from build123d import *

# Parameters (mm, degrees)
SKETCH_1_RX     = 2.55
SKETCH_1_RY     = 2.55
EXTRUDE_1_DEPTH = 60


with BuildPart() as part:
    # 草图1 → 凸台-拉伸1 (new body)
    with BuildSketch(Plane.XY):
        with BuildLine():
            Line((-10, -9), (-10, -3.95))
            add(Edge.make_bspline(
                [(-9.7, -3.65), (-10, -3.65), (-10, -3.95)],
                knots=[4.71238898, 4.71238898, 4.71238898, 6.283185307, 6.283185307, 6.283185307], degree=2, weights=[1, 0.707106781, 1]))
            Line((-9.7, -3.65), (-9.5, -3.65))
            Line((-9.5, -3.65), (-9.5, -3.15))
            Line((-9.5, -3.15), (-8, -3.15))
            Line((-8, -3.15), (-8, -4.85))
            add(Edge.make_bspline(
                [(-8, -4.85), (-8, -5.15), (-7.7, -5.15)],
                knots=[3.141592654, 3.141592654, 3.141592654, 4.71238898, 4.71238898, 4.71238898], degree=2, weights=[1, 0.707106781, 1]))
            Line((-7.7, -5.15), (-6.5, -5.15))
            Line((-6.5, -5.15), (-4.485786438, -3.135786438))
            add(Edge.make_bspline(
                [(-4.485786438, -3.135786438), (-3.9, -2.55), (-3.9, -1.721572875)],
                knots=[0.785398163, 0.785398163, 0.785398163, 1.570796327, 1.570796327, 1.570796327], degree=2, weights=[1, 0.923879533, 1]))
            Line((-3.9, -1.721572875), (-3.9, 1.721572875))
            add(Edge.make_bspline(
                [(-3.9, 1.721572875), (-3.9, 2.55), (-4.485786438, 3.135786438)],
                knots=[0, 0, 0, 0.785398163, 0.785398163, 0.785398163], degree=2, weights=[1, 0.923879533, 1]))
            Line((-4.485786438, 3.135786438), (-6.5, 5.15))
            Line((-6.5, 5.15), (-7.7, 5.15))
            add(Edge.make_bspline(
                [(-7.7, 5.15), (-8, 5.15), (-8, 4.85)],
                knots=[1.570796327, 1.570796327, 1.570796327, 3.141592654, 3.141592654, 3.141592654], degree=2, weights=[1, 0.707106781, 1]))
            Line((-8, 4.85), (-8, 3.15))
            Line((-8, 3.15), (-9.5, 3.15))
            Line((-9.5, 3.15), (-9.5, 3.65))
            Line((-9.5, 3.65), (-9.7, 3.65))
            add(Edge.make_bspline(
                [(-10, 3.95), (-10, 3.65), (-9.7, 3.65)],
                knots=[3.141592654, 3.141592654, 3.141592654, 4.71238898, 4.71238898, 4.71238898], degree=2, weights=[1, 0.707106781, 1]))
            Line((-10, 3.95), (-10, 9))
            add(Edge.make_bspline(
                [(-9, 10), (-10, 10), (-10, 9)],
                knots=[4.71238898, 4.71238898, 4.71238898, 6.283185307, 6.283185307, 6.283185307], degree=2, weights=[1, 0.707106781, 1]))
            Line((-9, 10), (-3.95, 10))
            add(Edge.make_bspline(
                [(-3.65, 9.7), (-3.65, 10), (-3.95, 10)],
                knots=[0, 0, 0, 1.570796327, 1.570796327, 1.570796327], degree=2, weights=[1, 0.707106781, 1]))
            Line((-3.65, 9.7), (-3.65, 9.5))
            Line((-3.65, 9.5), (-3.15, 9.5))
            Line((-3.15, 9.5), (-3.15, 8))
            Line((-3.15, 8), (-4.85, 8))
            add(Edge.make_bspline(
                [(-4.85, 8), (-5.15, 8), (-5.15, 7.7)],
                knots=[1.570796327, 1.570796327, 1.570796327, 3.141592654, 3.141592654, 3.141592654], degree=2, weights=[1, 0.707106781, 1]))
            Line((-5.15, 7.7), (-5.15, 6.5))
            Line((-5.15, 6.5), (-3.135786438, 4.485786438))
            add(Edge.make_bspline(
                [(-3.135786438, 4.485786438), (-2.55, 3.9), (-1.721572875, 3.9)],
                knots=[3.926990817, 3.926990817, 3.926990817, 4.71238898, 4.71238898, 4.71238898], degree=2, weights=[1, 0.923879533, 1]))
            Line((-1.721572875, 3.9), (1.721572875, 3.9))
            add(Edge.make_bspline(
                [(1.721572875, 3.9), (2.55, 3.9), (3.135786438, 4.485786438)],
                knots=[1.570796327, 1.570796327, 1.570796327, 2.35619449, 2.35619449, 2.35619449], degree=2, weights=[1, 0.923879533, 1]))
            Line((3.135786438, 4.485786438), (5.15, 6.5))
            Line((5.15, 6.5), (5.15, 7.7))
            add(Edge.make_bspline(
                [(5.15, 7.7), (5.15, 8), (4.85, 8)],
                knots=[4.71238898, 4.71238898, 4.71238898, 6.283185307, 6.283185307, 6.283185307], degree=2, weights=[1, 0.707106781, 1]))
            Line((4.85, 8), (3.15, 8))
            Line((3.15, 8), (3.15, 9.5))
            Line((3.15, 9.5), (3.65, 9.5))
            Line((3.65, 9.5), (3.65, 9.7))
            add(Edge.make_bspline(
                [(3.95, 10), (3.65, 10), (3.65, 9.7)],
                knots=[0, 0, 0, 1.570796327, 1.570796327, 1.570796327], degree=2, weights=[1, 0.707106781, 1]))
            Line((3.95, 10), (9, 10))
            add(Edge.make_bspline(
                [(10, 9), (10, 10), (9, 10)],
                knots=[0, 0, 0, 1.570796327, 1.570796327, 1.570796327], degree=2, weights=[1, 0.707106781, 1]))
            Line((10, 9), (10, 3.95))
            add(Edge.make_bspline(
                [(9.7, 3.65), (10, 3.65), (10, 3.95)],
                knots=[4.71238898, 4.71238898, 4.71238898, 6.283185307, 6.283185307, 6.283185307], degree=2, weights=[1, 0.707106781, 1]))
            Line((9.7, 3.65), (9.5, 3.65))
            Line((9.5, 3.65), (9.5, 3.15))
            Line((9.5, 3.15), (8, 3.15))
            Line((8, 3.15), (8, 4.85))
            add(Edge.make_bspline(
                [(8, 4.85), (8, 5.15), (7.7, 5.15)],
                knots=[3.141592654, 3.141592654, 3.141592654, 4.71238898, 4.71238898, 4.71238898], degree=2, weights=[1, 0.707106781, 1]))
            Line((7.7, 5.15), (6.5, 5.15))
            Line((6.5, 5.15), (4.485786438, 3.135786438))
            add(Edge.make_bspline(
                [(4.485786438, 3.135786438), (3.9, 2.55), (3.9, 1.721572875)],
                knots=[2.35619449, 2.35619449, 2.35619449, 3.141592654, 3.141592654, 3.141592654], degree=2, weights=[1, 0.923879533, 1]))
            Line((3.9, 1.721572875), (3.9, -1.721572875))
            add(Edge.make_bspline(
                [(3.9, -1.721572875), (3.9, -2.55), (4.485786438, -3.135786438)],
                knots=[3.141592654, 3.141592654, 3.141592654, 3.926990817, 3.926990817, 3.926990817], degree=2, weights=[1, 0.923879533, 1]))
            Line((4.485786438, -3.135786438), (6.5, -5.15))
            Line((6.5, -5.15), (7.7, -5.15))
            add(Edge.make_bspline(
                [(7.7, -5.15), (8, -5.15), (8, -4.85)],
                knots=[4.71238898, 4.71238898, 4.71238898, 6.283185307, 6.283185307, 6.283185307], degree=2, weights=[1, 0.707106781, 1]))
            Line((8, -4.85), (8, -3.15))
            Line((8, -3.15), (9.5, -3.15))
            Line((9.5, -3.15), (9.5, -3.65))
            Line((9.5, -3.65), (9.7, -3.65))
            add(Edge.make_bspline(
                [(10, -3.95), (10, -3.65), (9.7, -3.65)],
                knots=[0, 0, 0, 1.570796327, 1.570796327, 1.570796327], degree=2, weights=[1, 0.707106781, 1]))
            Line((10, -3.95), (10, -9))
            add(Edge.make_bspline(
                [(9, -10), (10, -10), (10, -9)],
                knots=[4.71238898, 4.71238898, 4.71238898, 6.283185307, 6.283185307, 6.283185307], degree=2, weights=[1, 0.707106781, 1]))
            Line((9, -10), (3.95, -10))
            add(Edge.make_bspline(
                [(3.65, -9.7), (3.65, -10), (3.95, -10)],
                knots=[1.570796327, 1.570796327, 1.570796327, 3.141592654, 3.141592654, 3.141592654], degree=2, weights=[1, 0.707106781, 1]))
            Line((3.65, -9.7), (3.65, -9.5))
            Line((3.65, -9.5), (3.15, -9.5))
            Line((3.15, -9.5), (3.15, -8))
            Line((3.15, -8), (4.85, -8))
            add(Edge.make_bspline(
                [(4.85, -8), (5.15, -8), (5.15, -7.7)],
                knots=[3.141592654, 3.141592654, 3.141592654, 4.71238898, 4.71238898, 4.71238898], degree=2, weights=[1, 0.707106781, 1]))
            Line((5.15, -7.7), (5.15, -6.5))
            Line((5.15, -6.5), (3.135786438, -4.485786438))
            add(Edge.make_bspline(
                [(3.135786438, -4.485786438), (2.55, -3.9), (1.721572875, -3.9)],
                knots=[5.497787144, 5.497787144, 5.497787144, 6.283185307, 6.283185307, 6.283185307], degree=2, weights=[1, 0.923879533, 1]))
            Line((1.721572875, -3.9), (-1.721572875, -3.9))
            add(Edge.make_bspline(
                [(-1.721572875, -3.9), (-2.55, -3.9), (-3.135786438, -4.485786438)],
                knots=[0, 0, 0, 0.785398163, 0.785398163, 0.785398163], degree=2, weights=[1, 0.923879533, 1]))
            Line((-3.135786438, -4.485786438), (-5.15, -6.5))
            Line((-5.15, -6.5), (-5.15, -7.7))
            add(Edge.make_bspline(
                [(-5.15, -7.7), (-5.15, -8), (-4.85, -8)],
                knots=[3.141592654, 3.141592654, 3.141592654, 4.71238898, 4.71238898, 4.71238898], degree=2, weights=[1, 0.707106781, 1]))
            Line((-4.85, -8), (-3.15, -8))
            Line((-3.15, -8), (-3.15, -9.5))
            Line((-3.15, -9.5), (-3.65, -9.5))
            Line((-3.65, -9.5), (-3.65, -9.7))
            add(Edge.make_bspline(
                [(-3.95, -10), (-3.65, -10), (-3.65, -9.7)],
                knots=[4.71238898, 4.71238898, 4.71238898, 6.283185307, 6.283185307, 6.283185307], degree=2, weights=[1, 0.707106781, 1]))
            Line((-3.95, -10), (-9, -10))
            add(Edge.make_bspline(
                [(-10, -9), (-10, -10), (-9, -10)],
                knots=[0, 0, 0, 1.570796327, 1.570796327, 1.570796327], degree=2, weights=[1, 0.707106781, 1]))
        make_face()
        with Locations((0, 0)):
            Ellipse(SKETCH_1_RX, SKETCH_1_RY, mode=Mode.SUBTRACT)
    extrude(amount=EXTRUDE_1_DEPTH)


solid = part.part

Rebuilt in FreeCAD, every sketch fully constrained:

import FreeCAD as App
import Part
import Sketcher
Q = App.Units.Quantity

doc = App.newDocument("Part")
body = doc.addObject("PartDesign::Body", "Body")

# Sketch on XY plane
sketch1 = doc.addObject("Sketcher::SketchObject", "Sketch")
body.addObject(sketch1)
sketch1.AttachmentSupport = (doc.XY_Plane, [""])
sketch1.MapMode = "FlatFace"
sketch1.addGeometry(Part.LineSegment(App.Vector(-10, -3.95, 0), App.Vector(-10, -9, 0)), False)
sketch1.addGeometry(Part.BSplineCurve([App.Vector(-10, -9, 0), App.Vector(-10, -10, 0), App.Vector(-9, -10, 0)], [3, 3], [0, 1.570796327], False, 2, [1, 0.707106781, 1], False), False)
sketch1.addGeometry(Part.LineSegment(App.Vector(-9, -10, 0), App.Vector(-3.95, -10, 0)), False)
sketch1.addGeometry(Part.BSplineCurve([App.Vector(-3.95, -10, 0), App.Vector(-3.65, -10, 0), App.Vector(-3.65, -9.7, 0)], [3, 3], [4.71238898, 6.283185307], False, 2, [1, 0.707106781, 1], False), False)
sketch1.addGeometry(Part.LineSegment(App.Vector(-3.65, -9.7, 0), App.Vector(-3.65, -9.5, 0)), False)
sketch1.addGeometry(Part.LineSegment(App.Vector(-3.65, -9.5, 0), App.Vector(-3.15, -9.5, 0)), False)
sketch1.addGeometry(Part.LineSegment(App.Vector(-3.15, -9.5, 0), App.Vector(-3.15, -8, 0)), False)
sketch1.addGeometry(Part.LineSegment(App.Vector(-3.15, -8, 0), App.Vector(-4.85, -8, 0)), False)
sketch1.addGeometry(Part.BSplineCurve([App.Vector(-5.15, -7.7, 0), App.Vector(-5.15, -8, 0), App.Vector(-4.85, -8, 0)], [3, 3], [3.141592654, 4.71238898], False, 2, [1, 0.707106781, 1], False), False)
sketch1.addGeometry(Part.LineSegment(App.Vector(-5.15, -7.7, 0), App.Vector(-5.15, -6.5, 0)), False)
sketch1.addGeometry(Part.LineSegment(App.Vector(-5.15, -6.5, 0), App.Vector(-3.135786, -4.485786, 0)), False)
sketch1.addGeometry(Part.BSplineCurve([App.Vector(-1.721573, -3.9, 0), App.Vector(-2.55, -3.9, 0), App.Vector(-3.135786, -4.485786, 0)], [3, 3], [0, 0.785398163], False, 2, [1, 0.923879533, 1], False), False)
sketch1.addGeometry(Part.LineSegment(App.Vector(-1.721573, -3.9, 0), App.Vector(1.721573, -3.9, 0)), False)
sketch1.addGeometry(Part.BSplineCurve([App.Vector(3.135786, -4.485786, 0), App.Vector(2.55, -3.9, 0), App.Vector(1.721573, -3.9, 0)], [3, 3], [5.497787144, 6.283185307], False, 2, [1, 0.923879533, 1], False), False)
sketch1.addGeometry(Part.LineSegment(App.Vector(3.135786, -4.485786, 0), App.Vector(5.15, -6.5, 0)), False)
sketch1.addGeometry(Part.LineSegment(App.Vector(5.15, -6.5, 0), App.Vector(5.15, -7.7, 0)), False)
sketch1.addGeometry(Part.BSplineCurve([App.Vector(4.85, -8, 0), App.Vector(5.15, -8, 0), App.Vector(5.15, -7.7, 0)], [3, 3], [3.141592654, 4.71238898], False, 2, [1, 0.707106781, 1], False), False)
sketch1.addGeometry(Part.LineSegment(App.Vector(4.85, -8, 0), App.Vector(3.15, -8, 0)), False)
sketch1.addGeometry(Part.LineSegment(App.Vector(3.15, -8, 0), App.Vector(3.15, -9.5, 0)), False)
sketch1.addGeometry(Part.LineSegment(App.Vector(3.15, -9.5, 0), App.Vector(3.65, -9.5, 0)), False)
sketch1.addGeometry(Part.LineSegment(App.Vector(3.65, -9.5, 0), App.Vector(3.65, -9.7, 0)), False)
sketch1.addGeometry(Part.BSplineCurve([App.Vector(3.65, -9.7, 0), App.Vector(3.65, -10, 0), App.Vector(3.95, -10, 0)], [3, 3], [1.570796327, 3.141592654], False, 2, [1, 0.707106781, 1], False), False)
sketch1.addGeometry(Part.LineSegment(App.Vector(3.95, -10, 0), App.Vector(9, -10, 0)), False)
sketch1.addGeometry(Part.BSplineCurve([App.Vector(9, -10, 0), App.Vector(10, -10, 0), App.Vector(10, -9, 0)], [3, 3], [4.71238898, 6.283185307], False, 2, [1, 0.707106781, 1], False), False)
sketch1.addGeometry(Part.LineSegment(App.Vector(10, -9, 0), App.Vector(10, -3.95, 0)), False)
sketch1.addGeometry(Part.BSplineCurve([App.Vector(10, -3.95, 0), App.Vector(10, -3.65, 0), App.Vector(9.7, -3.65, 0)], [3, 3], [0, 1.570796327], False, 2, [1, 0.707106781, 1], False), False)
sketch1.addGeometry(Part.LineSegment(App.Vector(9.7, -3.65, 0), App.Vector(9.5, -3.65, 0)), False)
sketch1.addGeometry(Part.LineSegment(App.Vector(9.5, -3.65, 0), App.Vector(9.5, -3.15, 0)), False)
sketch1.addGeometry(Part.LineSegment(App.Vector(9.5, -3.15, 0), App.Vector(8, -3.15, 0)), False)
sketch1.addGeometry(Part.LineSegment(App.Vector(8, -3.15, 0), App.Vector(8, -4.85, 0)), False)
sketch1.addGeometry(Part.BSplineCurve([App.Vector(7.7, -5.15, 0), App.Vector(8, -5.15, 0), App.Vector(8, -4.85, 0)], [3, 3], [4.71238898, 6.283185307], False, 2, [1, 0.707106781, 1], False), False)
sketch1.addGeometry(Part.LineSegment(App.Vector(7.7, -5.15, 0), App.Vector(6.5, -5.15, 0)), False)
sketch1.addGeometry(Part.LineSegment(App.Vector(6.5, -5.15, 0), App.Vector(4.485786, -3.135786, 0)), False)
sketch1.addGeometry(Part.BSplineCurve([App.Vector(3.9, -1.721573, 0), App.Vector(3.9, -2.55, 0), App.Vector(4.485786, -3.135786, 0)], [3, 3], [3.141592654, 3.926990817], False, 2, [1, 0.923879533, 1], False), False)
sketch1.addGeometry(Part.LineSegment(App.Vector(3.9, -1.721573, 0), App.Vector(3.9, 1.721573, 0)), False)
sketch1.addGeometry(Part.BSplineCurve([App.Vector(4.485786, 3.135786, 0), App.Vector(3.9, 2.55, 0), App.Vector(3.9, 1.721573, 0)], [3, 3], [2.35619449, 3.141592654], False, 2, [1, 0.923879533, 1], False), False)
sketch1.addGeometry(Part.LineSegment(App.Vector(4.485786, 3.135786, 0), App.Vector(6.5, 5.15, 0)), False)
sketch1.addGeometry(Part.LineSegment(App.Vector(6.5, 5.15, 0), App.Vector(7.7, 5.15, 0)), False)
sketch1.addGeometry(Part.BSplineCurve([App.Vector(8, 4.85, 0), App.Vector(8, 5.15, 0), App.Vector(7.7, 5.15, 0)], [3, 3], [3.141592654, 4.71238898], False, 2, [1, 0.707106781, 1], False), False)
sketch1.addGeometry(Part.LineSegment(App.Vector(8, 4.85, 0), App.Vector(8, 3.15, 0)), False)
sketch1.addGeometry(Part.LineSegment(App.Vector(8, 3.15, 0), App.Vector(9.5, 3.15, 0)), False)
sketch1.addGeometry(Part.LineSegment(App.Vector(9.5, 3.15, 0), App.Vector(9.5, 3.65, 0)), False)
sketch1.addGeometry(Part.LineSegment(App.Vector(9.5, 3.65, 0), App.Vector(9.7, 3.65, 0)), False)
sketch1.addGeometry(Part.BSplineCurve([App.Vector(9.7, 3.65, 0), App.Vector(10, 3.65, 0), App.Vector(10, 3.95, 0)], [3, 3], [4.71238898, 6.283185307], False, 2, [1, 0.707106781, 1], False), False)
sketch1.addGeometry(Part.LineSegment(App.Vector(10, 3.95, 0), App.Vector(10, 9, 0)), False)
sketch1.addGeometry(Part.BSplineCurve([App.Vector(10, 9, 0), App.Vector(10, 10, 0), App.Vector(9, 10, 0)], [3, 3], [0, 1.570796327], False, 2, [1, 0.707106781, 1], False), False)
sketch1.addGeometry(Part.LineSegment(App.Vector(9, 10, 0), App.Vector(3.95, 10, 0)), False)
sketch1.addGeometry(Part.BSplineCurve([App.Vector(3.95, 10, 0), App.Vector(3.65, 10, 0), App.Vector(3.65, 9.7, 0)], [3, 3], [0, 1.570796327], False, 2, [1, 0.707106781, 1], False), False)
sketch1.addGeometry(Part.LineSegment(App.Vector(3.65, 9.7, 0), App.Vector(3.65, 9.5, 0)), False)
sketch1.addGeometry(Part.LineSegment(App.Vector(3.65, 9.5, 0), App.Vector(3.15, 9.5, 0)), False)
sketch1.addGeometry(Part.LineSegment(App.Vector(3.15, 9.5, 0), App.Vector(3.15, 8, 0)), False)
sketch1.addGeometry(Part.LineSegment(App.Vector(3.15, 8, 0), App.Vector(4.85, 8, 0)), False)
sketch1.addGeometry(Part.BSplineCurve([App.Vector(5.15, 7.7, 0), App.Vector(5.15, 8, 0), App.Vector(4.85, 8, 0)], [3, 3], [4.71238898, 6.283185307], False, 2, [1, 0.707106781, 1], False), False)
sketch1.addGeometry(Part.LineSegment(App.Vector(5.15, 7.7, 0), App.Vector(5.15, 6.5, 0)), False)
sketch1.addGeometry(Part.LineSegment(App.Vector(5.15, 6.5, 0), App.Vector(3.135786, 4.485786, 0)), False)
sketch1.addGeometry(Part.BSplineCurve([App.Vector(1.721573, 3.9, 0), App.Vector(2.55, 3.9, 0), App.Vector(3.135786, 4.485786, 0)], [3, 3], [1.570796327, 2.35619449], False, 2, [1, 0.923879533, 1], False), False)
sketch1.addGeometry(Part.LineSegment(App.Vector(1.721573, 3.9, 0), App.Vector(-1.721573, 3.9, 0)), False)
sketch1.addGeometry(Part.BSplineCurve([App.Vector(-3.135786, 4.485786, 0), App.Vector(-2.55, 3.9, 0), App.Vector(-1.721573, 3.9, 0)], [3, 3], [3.926990817, 4.71238898], False, 2, [1, 0.923879533, 1], False), False)
sketch1.addGeometry(Part.LineSegment(App.Vector(-3.135786, 4.485786, 0), App.Vector(-5.15, 6.5, 0)), False)
sketch1.addGeometry(Part.LineSegment(App.Vector(-5.15, 6.5, 0), App.Vector(-5.15, 7.7, 0)), False)
sketch1.addGeometry(Part.BSplineCurve([App.Vector(-4.85, 8, 0), App.Vector(-5.15, 8, 0), App.Vector(-5.15, 7.7, 0)], [3, 3], [1.570796327, 3.141592654], False, 2, [1, 0.707106781, 1], False), False)
sketch1.addGeometry(Part.LineSegment(App.Vector(-4.85, 8, 0), App.Vector(-3.15, 8, 0)), False)
sketch1.addGeometry(Part.LineSegment(App.Vector(-3.15, 8, 0), App.Vector(-3.15, 9.5, 0)), False)
sketch1.addGeometry(Part.LineSegment(App.Vector(-3.15, 9.5, 0), App.Vector(-3.65, 9.5, 0)), False)
sketch1.addGeometry(Part.LineSegment(App.Vector(-3.65, 9.5, 0), App.Vector(-3.65, 9.7, 0)), False)
sketch1.addGeometry(Part.BSplineCurve([App.Vector(-3.65, 9.7, 0), App.Vector(-3.65, 10, 0), App.Vector(-3.95, 10, 0)], [3, 3], [0, 1.570796327], False, 2, [1, 0.707106781, 1], False), False)
sketch1.addGeometry(Part.LineSegment(App.Vector(-3.95, 10, 0), App.Vector(-9, 10, 0)), False)
sketch1.addGeometry(Part.BSplineCurve([App.Vector(-9, 10, 0), App.Vector(-10, 10, 0), App.Vector(-10, 9, 0)], [3, 3], [4.71238898, 6.283185307], False, 2, [1, 0.707106781, 1], False), False)
sketch1.addGeometry(Part.LineSegment(App.Vector(-10, 9, 0), App.Vector(-10, 3.95, 0)), False)
sketch1.addGeometry(Part.BSplineCurve([App.Vector(-10, 3.95, 0), App.Vector(-10, 3.65, 0), App.Vector(-9.7, 3.65, 0)], [3, 3], [3.141592654, 4.71238898], False, 2, [1, 0.707106781, 1], False), False)
sketch1.addGeometry(Part.LineSegment(App.Vector(-9.7, 3.65, 0), App.Vector(-9.5, 3.65, 0)), False)
sketch1.addGeometry(Part.LineSegment(App.Vector(-9.5, 3.65, 0), App.Vector(-9.5, 3.15, 0)), False)
sketch1.addGeometry(Part.LineSegment(App.Vector(-9.5, 3.15, 0), App.Vector(-8, 3.15, 0)), False)
sketch1.addGeometry(Part.LineSegment(App.Vector(-8, 3.15, 0), App.Vector(-8, 4.85, 0)), False)
sketch1.addGeometry(Part.BSplineCurve([App.Vector(-7.7, 5.15, 0), App.Vector(-8, 5.15, 0), App.Vector(-8, 4.85, 0)], [3, 3], [1.570796327, 3.141592654], False, 2, [1, 0.707106781, 1], False), False)
sketch1.addGeometry(Part.LineSegment(App.Vector(-7.7, 5.15, 0), App.Vector(-6.5, 5.15, 0)), False)
sketch1.addGeometry(Part.LineSegment(App.Vector(-6.5, 5.15, 0), App.Vector(-4.485786, 3.135786, 0)), False)
sketch1.addGeometry(Part.BSplineCurve([App.Vector(-3.9, 1.721573, 0), App.Vector(-3.9, 2.55, 0), App.Vector(-4.485786, 3.135786, 0)], [3, 3], [0, 0.785398163], False, 2, [1, 0.923879533, 1], False), False)
sketch1.addGeometry(Part.LineSegment(App.Vector(-3.9, 1.721573, 0), App.Vector(-3.9, -1.721573, 0)), False)
sketch1.addGeometry(Part.BSplineCurve([App.Vector(-4.485786, -3.135786, 0), App.Vector(-3.9, -2.55, 0), App.Vector(-3.9, -1.721573, 0)], [3, 3], [0.785398163, 1.570796327], False, 2, [1, 0.923879533, 1], False), False)
sketch1.addGeometry(Part.LineSegment(App.Vector(-4.485786, -3.135786, 0), App.Vector(-6.5, -5.15, 0)), False)
sketch1.addGeometry(Part.LineSegment(App.Vector(-6.5, -5.15, 0), App.Vector(-7.7, -5.15, 0)), False)
sketch1.addGeometry(Part.BSplineCurve([App.Vector(-8, -4.85, 0), App.Vector(-8, -5.15, 0), App.Vector(-7.7, -5.15, 0)], [3, 3], [3.141592654, 4.71238898], False, 2, [1, 0.707106781, 1], False), False)
sketch1.addGeometry(Part.LineSegment(App.Vector(-8, -4.85, 0), App.Vector(-8, -3.15, 0)), False)
sketch1.addGeometry(Part.LineSegment(App.Vector(-8, -3.15, 0), App.Vector(-9.5, -3.15, 0)), False)
sketch1.addGeometry(Part.LineSegment(App.Vector(-9.5, -3.15, 0), App.Vector(-9.5, -3.65, 0)), False)
sketch1.addGeometry(Part.LineSegment(App.Vector(-9.5, -3.65, 0), App.Vector(-9.7, -3.65, 0)), False)
sketch1.addGeometry(Part.BSplineCurve([App.Vector(-9.7, -3.65, 0), App.Vector(-10, -3.65, 0), App.Vector(-10, -3.95, 0)], [3, 3], [4.71238898, 6.283185307], False, 2, [1, 0.707106781, 1], False), False)
sketch1.addGeometry(Part.Ellipse(App.Vector(2.55, 0, 0), App.Vector(0, 2.55, 0), App.Vector(0, 0, 0)), False)
sketch1.addConstraint(Sketcher.Constraint("Block", 1))
sketch1.addConstraint(Sketcher.Constraint("Block", 3))
sketch1.addConstraint(Sketcher.Constraint("Block", 8))
sketch1.addConstraint(Sketcher.Constraint("Block", 11))
sketch1.addConstraint(Sketcher.Constraint("Block", 13))
sketch1.addConstraint(Sketcher.Constraint("Block", 16))
sketch1.addConstraint(Sketcher.Constraint("Block", 21))
sketch1.addConstraint(Sketcher.Constraint("Block", 23))
sketch1.addConstraint(Sketcher.Constraint("Block", 25))
sketch1.addConstraint(Sketcher.Constraint("Block", 30))
sketch1.addConstraint(Sketcher.Constraint("Block", 33))
sketch1.addConstraint(Sketcher.Constraint("Block", 35))
sketch1.addConstraint(Sketcher.Constraint("Block", 38))
sketch1.addConstraint(Sketcher.Constraint("Block", 43))
sketch1.addConstraint(Sketcher.Constraint("Block", 45))
sketch1.addConstraint(Sketcher.Constraint("Block", 47))
sketch1.addConstraint(Sketcher.Constraint("Block", 52))
sketch1.addConstraint(Sketcher.Constraint("Block", 55))
sketch1.addConstraint(Sketcher.Constraint("Block", 57))
sketch1.addConstraint(Sketcher.Constraint("Block", 60))
sketch1.addConstraint(Sketcher.Constraint("Block", 65))
sketch1.addConstraint(Sketcher.Constraint("Block", 67))
sketch1.addConstraint(Sketcher.Constraint("Block", 69))
sketch1.addConstraint(Sketcher.Constraint("Block", 74))
sketch1.addConstraint(Sketcher.Constraint("Block", 77))
sketch1.addConstraint(Sketcher.Constraint("Block", 79))
sketch1.addConstraint(Sketcher.Constraint("Block", 82))
sketch1.addConstraint(Sketcher.Constraint("Block", 87))
sketch1.addConstraint(Sketcher.Constraint("Block", 88))
sketch1.addConstraint(Sketcher.Constraint("Coincident", 0, 2, 1, 1))
sketch1.addConstraint(Sketcher.Constraint("Coincident", 1, 2, 2, 1))
sketch1.addConstraint(Sketcher.Constraint("Coincident", 2, 2, 3, 1))
sketch1.addConstraint(Sketcher.Constraint("Coincident", 3, 2, 4, 1))
sketch1.addConstraint(Sketcher.Constraint("Coincident", 4, 2, 5, 1))
sketch1.addConstraint(Sketcher.Constraint("Coincident", 5, 2, 6, 1))
sketch1.addConstraint(Sketcher.Constraint("Coincident", 6, 2, 7, 1))
sketch1.addConstraint(Sketcher.Constraint("Coincident", 7, 2, 8, 2))
sketch1.addConstraint(Sketcher.Constraint("Coincident", 8, 1, 9, 1))
sketch1.addConstraint(Sketcher.Constraint("Coincident", 9, 2, 10, 1))
sketch1.addConstraint(Sketcher.Constraint("Coincident", 10, 2, 11, 2))
sketch1.addConstraint(Sketcher.Constraint("Coincident", 11, 1, 12, 1))
sketch1.addConstraint(Sketcher.Constraint("Coincident", 12, 2, 13, 2))
sketch1.addConstraint(Sketcher.Constraint("Coincident", 13, 1, 14, 1))
sketch1.addConstraint(Sketcher.Constraint("Coincident", 14, 2, 15, 1))
sketch1.addConstraint(Sketcher.Constraint("Coincident", 15, 2, 16, 2))
sketch1.addConstraint(Sketcher.Constraint("Coincident", 16, 1, 17, 1))
sketch1.addConstraint(Sketcher.Constraint("Coincident", 17, 2, 18, 1))
sketch1.addConstraint(Sketcher.Constraint("Coincident", 18, 2, 19, 1))
sketch1.addConstraint(Sketcher.Constraint("Coincident", 19, 2, 20, 1))
sketch1.addConstraint(Sketcher.Constraint("Coincident", 20, 2, 21, 1))
sketch1.addConstraint(Sketcher.Constraint("Coincident", 21, 2, 22, 1))
sketch1.addConstraint(Sketcher.Constraint("Coincident", 22, 2, 23, 1))
sketch1.addConstraint(Sketcher.Constraint("Coincident", 23, 2, 24, 1))
sketch1.addConstraint(Sketcher.Constraint("Coincident", 24, 2, 25, 1))
sketch1.addConstraint(Sketcher.Constraint("Coincident", 25, 2, 26, 1))
sketch1.addConstraint(Sketcher.Constraint("Coincident", 26, 2, 27, 1))
sketch1.addConstraint(Sketcher.Constraint("Coincident", 27, 2, 28, 1))
sketch1.addConstraint(Sketcher.Constraint("Coincident", 28, 2, 29, 1))
sketch1.addConstraint(Sketcher.Constraint("Coincident", 29, 2, 30, 2))
sketch1.addConstraint(Sketcher.Constraint("Coincident", 30, 1, 31, 1))
sketch1.addConstraint(Sketcher.Constraint("Coincident", 31, 2, 32, 1))
sketch1.addConstraint(Sketcher.Constraint("Coincident", 32, 2, 33, 2))
sketch1.addConstraint(Sketcher.Constraint("Coincident", 33, 1, 34, 1))
sketch1.addConstraint(Sketcher.Constraint("Coincident", 34, 2, 35, 2))
sketch1.addConstraint(Sketcher.Constraint("Coincident", 35, 1, 36, 1))
sketch1.addConstraint(Sketcher.Constraint("Coincident", 36, 2, 37, 1))
sketch1.addConstraint(Sketcher.Constraint("Coincident", 37, 2, 38, 2))
sketch1.addConstraint(Sketcher.Constraint("Coincident", 38, 1, 39, 1))
sketch1.addConstraint(Sketcher.Constraint("Coincident", 39, 2, 40, 1))
sketch1.addConstraint(Sketcher.Constraint("Coincident", 40, 2, 41, 1))
sketch1.addConstraint(Sketcher.Constraint("Coincident", 41, 2, 42, 1))
sketch1.addConstraint(Sketcher.Constraint("Coincident", 42, 2, 43, 1))
sketch1.addConstraint(Sketcher.Constraint("Coincident", 43, 2, 44, 1))
sketch1.addConstraint(Sketcher.Constraint("Coincident", 44, 2, 45, 1))
sketch1.addConstraint(Sketcher.Constraint("Coincident", 45, 2, 46, 1))
sketch1.addConstraint(Sketcher.Constraint("Coincident", 46, 2, 47, 1))
sketch1.addConstraint(Sketcher.Constraint("Coincident", 47, 2, 48, 1))
sketch1.addConstraint(Sketcher.Constraint("Coincident", 48, 2, 49, 1))
sketch1.addConstraint(Sketcher.Constraint("Coincident", 49, 2, 50, 1))
sketch1.addConstraint(Sketcher.Constraint("Coincident", 50, 2, 51, 1))
sketch1.addConstraint(Sketcher.Constraint("Coincident", 51, 2, 52, 2))
sketch1.addConstraint(Sketcher.Constraint("Coincident", 52, 1, 53, 1))
sketch1.addConstraint(Sketcher.Constraint("Coincident", 53, 2, 54, 1))
sketch1.addConstraint(Sketcher.Constraint("Coincident", 54, 2, 55, 2))
sketch1.addConstraint(Sketcher.Constraint("Coincident", 55, 1, 56, 1))
sketch1.addConstraint(Sketcher.Constraint("Coincident", 56, 2, 57, 2))
sketch1.addConstraint(Sketcher.Constraint("Coincident", 57, 1, 58, 1))
sketch1.addConstraint(Sketcher.Constraint("Coincident", 58, 2, 59, 1))
sketch1.addConstraint(Sketcher.Constraint("Coincident", 59, 2, 60, 2))
sketch1.addConstraint(Sketcher.Constraint("Coincident", 60, 1, 61, 1))
sketch1.addConstraint(Sketcher.Constraint("Coincident", 61, 2, 62, 1))
sketch1.addConstraint(Sketcher.Constraint("Coincident", 62, 2, 63, 1))
sketch1.addConstraint(Sketcher.Constraint("Coincident", 63, 2, 64, 1))
sketch1.addConstraint(Sketcher.Constraint("Coincident", 64, 2, 65, 1))
sketch1.addConstraint(Sketcher.Constraint("Coincident", 65, 2, 66, 1))
sketch1.addConstraint(Sketcher.Constraint("Coincident", 66, 2, 67, 1))
sketch1.addConstraint(Sketcher.Constraint("Coincident", 67, 2, 68, 1))
sketch1.addConstraint(Sketcher.Constraint("Coincident", 68, 2, 69, 1))
sketch1.addConstraint(Sketcher.Constraint("Coincident", 69, 2, 70, 1))
sketch1.addConstraint(Sketcher.Constraint("Coincident", 70, 2, 71, 1))
sketch1.addConstraint(Sketcher.Constraint("Coincident", 71, 2, 72, 1))
sketch1.addConstraint(Sketcher.Constraint("Coincident", 72, 2, 73, 1))
sketch1.addConstraint(Sketcher.Constraint("Coincident", 73, 2, 74, 2))
sketch1.addConstraint(Sketcher.Constraint("Coincident", 74, 1, 75, 1))
sketch1.addConstraint(Sketcher.Constraint("Coincident", 75, 2, 76, 1))
sketch1.addConstraint(Sketcher.Constraint("Coincident", 76, 2, 77, 2))
sketch1.addConstraint(Sketcher.Constraint("Coincident", 77, 1, 78, 1))
sketch1.addConstraint(Sketcher.Constraint("Coincident", 78, 2, 79, 2))
sketch1.addConstraint(Sketcher.Constraint("Coincident", 79, 1, 80, 1))
sketch1.addConstraint(Sketcher.Constraint("Coincident", 80, 2, 81, 1))
sketch1.addConstraint(Sketcher.Constraint("Coincident", 81, 2, 82, 2))
sketch1.addConstraint(Sketcher.Constraint("Coincident", 82, 1, 83, 1))
sketch1.addConstraint(Sketcher.Constraint("Coincident", 83, 2, 84, 1))
sketch1.addConstraint(Sketcher.Constraint("Coincident", 84, 2, 85, 1))
sketch1.addConstraint(Sketcher.Constraint("Coincident", 85, 2, 86, 1))
sketch1.addConstraint(Sketcher.Constraint("Coincident", 86, 2, 87, 1))
sketch1.addConstraint(Sketcher.Constraint("Coincident", 87, 2, 0, 1))
sketch1.addConstraint(Sketcher.Constraint("Vertical", 4))
sketch1.addConstraint(Sketcher.Constraint("Horizontal", 5))
sketch1.addConstraint(Sketcher.Constraint("Vertical", 6))
sketch1.addConstraint(Sketcher.Constraint("Horizontal", 7))
sketch1.addConstraint(Sketcher.Constraint("Vertical", 9))
sketch1.addConstraint(Sketcher.Constraint("Vertical", 15))
sketch1.addConstraint(Sketcher.Constraint("Horizontal", 17))
sketch1.addConstraint(Sketcher.Constraint("Vertical", 18))
sketch1.addConstraint(Sketcher.Constraint("Horizontal", 19))
sketch1.addConstraint(Sketcher.Constraint("Vertical", 20))
sketch1.addConstraint(Sketcher.Constraint("Horizontal", 26))
sketch1.addConstraint(Sketcher.Constraint("Vertical", 27))
sketch1.addConstraint(Sketcher.Constraint("Horizontal", 28))
sketch1.addConstraint(Sketcher.Constraint("Vertical", 29))
sketch1.addConstraint(Sketcher.Constraint("Horizontal", 31))
sketch1.addConstraint(Sketcher.Constraint("Horizontal", 37))
sketch1.addConstraint(Sketcher.Constraint("Vertical", 39))
sketch1.addConstraint(Sketcher.Constraint("Horizontal", 40))
sketch1.addConstraint(Sketcher.Constraint("Vertical", 41))
sketch1.addConstraint(Sketcher.Constraint("Horizontal", 42))
sketch1.addConstraint(Sketcher.Constraint("Vertical", 48))
sketch1.addConstraint(Sketcher.Constraint("Horizontal", 49))
sketch1.addConstraint(Sketcher.Constraint("Vertical", 50))
sketch1.addConstraint(Sketcher.Constraint("Horizontal", 51))
sketch1.addConstraint(Sketcher.Constraint("Vertical", 53))
sketch1.addConstraint(Sketcher.Constraint("Vertical", 59))
sketch1.addConstraint(Sketcher.Constraint("Horizontal", 61))
sketch1.addConstraint(Sketcher.Constraint("Vertical", 62))
sketch1.addConstraint(Sketcher.Constraint("Horizontal", 63))
sketch1.addConstraint(Sketcher.Constraint("Vertical", 64))
sketch1.addConstraint(Sketcher.Constraint("Horizontal", 70))
sketch1.addConstraint(Sketcher.Constraint("Vertical", 71))
sketch1.addConstraint(Sketcher.Constraint("Horizontal", 72))
sketch1.addConstraint(Sketcher.Constraint("Vertical", 73))
sketch1.addConstraint(Sketcher.Constraint("Horizontal", 75))
sketch1.addConstraint(Sketcher.Constraint("Horizontal", 81))
sketch1.addConstraint(Sketcher.Constraint("Vertical", 83))
sketch1.addConstraint(Sketcher.Constraint("Horizontal", 84))
sketch1.addConstraint(Sketcher.Constraint("Vertical", 85))
sketch1.addConstraint(Sketcher.Constraint("Horizontal", 86))
sketch1.addConstraint(Sketcher.Constraint("DistanceX", 5, 1, 5, 2, Q("0.5 mm")))
sketch1.addConstraint(Sketcher.Constraint("DistanceX", 17, 2, 17, 1, Q("1.7 mm")))
sketch1.addConstraint(Sketcher.Constraint("DistanceX", 26, 2, 26, 1, Q("0.2 mm")))
sketch1.addConstraint(Sketcher.Constraint("DistanceX", 31, 2, 31, 1, Q("1.2 mm")))
sketch1.addConstraint(Sketcher.Constraint("DistanceX", 37, 1, 37, 2, Q("1.2 mm")))
sketch1.addConstraint(Sketcher.Constraint("DistanceX", 40, 1, 40, 2, Q("1.5 mm")))
sketch1.addConstraint(Sketcher.Constraint("DistanceX", 49, 2, 49, 1, Q("0.5 mm")))
sketch1.addConstraint(Sketcher.Constraint("DistanceX", 61, 1, 61, 2, Q("1.7 mm")))
sketch1.addConstraint(Sketcher.Constraint("DistanceX", 70, 1, 70, 2, Q("0.2 mm")))
sketch1.addConstraint(Sketcher.Constraint("DistanceX", 75, 1, 75, 2, Q("1.2 mm")))
sketch1.addConstraint(Sketcher.Constraint("DistanceX", 81, 2, 81, 1, Q("1.2 mm")))
sketch1.addConstraint(Sketcher.Constraint("DistanceX", 84, 2, 84, 1, Q("1.5 mm")))
sketch1.addConstraint(Sketcher.Constraint("DistanceY", 4, 1, 4, 2, Q("0.2 mm")))
sketch1.addConstraint(Sketcher.Constraint("DistanceY", 9, 1, 9, 2, Q("1.2 mm")))
sketch1.addConstraint(Sketcher.Constraint("DistanceY", 15, 2, 15, 1, Q("1.2 mm")))
sketch1.addConstraint(Sketcher.Constraint("DistanceY", 18, 2, 18, 1, Q("1.5 mm")))
sketch1.addConstraint(Sketcher.Constraint("DistanceY", 27, 1, 27, 2, Q("0.5 mm")))
sketch1.addConstraint(Sketcher.Constraint("DistanceY", 39, 2, 39, 1, Q("1.7 mm")))
sketch1.addConstraint(Sketcher.Constraint("DistanceY", 48, 2, 48, 1, Q("0.2 mm")))
sketch1.addConstraint(Sketcher.Constraint("DistanceY", 53, 2, 53, 1, Q("1.2 mm")))
sketch1.addConstraint(Sketcher.Constraint("DistanceY", 59, 1, 59, 2, Q("1.2 mm")))
sketch1.addConstraint(Sketcher.Constraint("DistanceY", 62, 1, 62, 2, Q("1.5 mm")))
sketch1.addConstraint(Sketcher.Constraint("DistanceY", 71, 2, 71, 1, Q("0.5 mm")))
sketch1.addConstraint(Sketcher.Constraint("DistanceY", 83, 1, 83, 2, Q("1.7 mm")))
pad1 = doc.addObject("PartDesign::Pad", "Pad")
body.addObject(pad1)
pad1.Profile = sketch1
pad1.Length = 60

doc.recompute()
